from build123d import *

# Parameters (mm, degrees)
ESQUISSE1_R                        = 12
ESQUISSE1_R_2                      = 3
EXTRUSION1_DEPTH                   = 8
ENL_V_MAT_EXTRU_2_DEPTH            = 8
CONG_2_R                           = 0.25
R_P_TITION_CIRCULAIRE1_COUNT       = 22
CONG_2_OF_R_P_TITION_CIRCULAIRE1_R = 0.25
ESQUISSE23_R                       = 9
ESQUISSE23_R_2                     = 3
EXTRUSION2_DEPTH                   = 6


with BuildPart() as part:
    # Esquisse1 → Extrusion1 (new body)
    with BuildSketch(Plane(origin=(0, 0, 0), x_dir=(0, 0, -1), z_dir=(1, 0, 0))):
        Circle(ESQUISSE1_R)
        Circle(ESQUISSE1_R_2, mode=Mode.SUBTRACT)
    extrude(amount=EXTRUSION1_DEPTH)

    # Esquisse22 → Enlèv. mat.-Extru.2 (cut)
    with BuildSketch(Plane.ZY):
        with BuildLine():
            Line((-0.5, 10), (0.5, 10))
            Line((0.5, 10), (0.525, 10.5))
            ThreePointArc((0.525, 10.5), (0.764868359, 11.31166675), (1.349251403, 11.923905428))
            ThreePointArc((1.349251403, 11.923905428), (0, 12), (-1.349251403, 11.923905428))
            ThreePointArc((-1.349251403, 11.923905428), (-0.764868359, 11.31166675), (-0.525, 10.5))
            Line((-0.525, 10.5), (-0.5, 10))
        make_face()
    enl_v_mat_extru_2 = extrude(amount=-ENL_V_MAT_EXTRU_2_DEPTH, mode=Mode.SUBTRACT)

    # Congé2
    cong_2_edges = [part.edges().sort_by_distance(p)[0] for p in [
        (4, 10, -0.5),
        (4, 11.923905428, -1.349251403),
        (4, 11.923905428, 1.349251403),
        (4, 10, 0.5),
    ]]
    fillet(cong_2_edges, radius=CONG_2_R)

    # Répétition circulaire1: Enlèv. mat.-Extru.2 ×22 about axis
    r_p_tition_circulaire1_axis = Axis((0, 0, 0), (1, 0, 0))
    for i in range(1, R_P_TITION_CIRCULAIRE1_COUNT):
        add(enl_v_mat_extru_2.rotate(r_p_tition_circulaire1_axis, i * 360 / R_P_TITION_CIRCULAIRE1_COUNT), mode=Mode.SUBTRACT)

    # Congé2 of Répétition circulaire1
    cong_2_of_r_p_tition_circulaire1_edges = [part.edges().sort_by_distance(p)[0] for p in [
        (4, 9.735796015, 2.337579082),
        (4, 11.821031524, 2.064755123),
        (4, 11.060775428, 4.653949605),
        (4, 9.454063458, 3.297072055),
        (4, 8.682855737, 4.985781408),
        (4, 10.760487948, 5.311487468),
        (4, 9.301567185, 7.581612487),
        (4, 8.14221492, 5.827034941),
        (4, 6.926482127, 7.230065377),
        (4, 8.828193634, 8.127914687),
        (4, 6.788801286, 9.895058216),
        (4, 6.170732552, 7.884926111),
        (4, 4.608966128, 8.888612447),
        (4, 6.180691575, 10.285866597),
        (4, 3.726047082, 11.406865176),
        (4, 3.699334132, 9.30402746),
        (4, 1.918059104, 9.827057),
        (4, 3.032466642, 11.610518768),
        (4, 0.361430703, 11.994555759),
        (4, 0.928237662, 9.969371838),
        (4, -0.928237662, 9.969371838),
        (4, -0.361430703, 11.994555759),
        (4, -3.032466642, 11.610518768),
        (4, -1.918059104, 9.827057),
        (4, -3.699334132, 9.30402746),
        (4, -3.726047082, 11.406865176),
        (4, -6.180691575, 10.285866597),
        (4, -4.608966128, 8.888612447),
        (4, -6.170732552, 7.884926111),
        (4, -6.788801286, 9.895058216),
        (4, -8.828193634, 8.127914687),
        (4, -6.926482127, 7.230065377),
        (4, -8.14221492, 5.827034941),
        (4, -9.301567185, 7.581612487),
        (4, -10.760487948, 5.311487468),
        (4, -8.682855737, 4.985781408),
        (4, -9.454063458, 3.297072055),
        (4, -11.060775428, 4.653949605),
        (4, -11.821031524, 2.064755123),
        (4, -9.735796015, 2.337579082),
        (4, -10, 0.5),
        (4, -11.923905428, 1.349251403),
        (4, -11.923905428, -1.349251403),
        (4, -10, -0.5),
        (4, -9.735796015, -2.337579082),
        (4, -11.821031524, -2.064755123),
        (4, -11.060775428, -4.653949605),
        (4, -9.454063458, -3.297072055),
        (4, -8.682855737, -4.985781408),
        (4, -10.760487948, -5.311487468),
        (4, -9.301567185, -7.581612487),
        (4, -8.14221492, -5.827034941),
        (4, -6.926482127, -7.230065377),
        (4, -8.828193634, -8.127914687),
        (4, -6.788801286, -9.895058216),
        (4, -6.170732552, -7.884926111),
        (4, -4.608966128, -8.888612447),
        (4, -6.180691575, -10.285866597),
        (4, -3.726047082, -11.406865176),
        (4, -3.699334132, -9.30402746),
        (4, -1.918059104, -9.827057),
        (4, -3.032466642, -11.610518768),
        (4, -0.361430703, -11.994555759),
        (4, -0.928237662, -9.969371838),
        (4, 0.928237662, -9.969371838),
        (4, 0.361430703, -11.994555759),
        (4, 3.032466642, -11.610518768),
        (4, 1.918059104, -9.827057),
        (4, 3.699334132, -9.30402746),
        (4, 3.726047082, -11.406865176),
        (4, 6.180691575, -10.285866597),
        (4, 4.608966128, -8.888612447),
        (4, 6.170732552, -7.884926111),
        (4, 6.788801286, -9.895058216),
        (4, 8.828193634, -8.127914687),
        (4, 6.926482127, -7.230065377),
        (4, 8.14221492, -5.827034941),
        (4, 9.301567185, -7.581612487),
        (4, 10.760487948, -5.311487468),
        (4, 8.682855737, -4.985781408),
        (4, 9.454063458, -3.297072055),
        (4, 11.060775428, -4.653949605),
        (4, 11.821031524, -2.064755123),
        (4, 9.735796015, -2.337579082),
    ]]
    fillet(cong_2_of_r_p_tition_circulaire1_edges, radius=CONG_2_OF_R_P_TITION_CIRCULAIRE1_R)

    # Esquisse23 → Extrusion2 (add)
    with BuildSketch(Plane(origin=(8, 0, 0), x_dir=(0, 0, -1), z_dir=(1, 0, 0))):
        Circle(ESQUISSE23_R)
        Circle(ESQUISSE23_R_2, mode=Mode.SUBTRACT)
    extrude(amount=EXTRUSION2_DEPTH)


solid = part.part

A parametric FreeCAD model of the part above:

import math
import FreeCAD as App
import Part
import Sketcher


def edges_at(feature, points):
    """Names of the edges that pass closest to the given points."""
    edges = feature.Shape.Edges
    near = lambda p: min(range(len(edges)), key=lambda i: edges[i].distToShape(Part.Vertex(*p))[0])
    return sorted({f"Edge{near(p) + 1}" for p in points})

doc = App.newDocument("Part")
body = doc.addObject("PartDesign::Body", "Body")

sketch1 = doc.addObject("Sketcher::SketchObject", "Sketch")
body.addObject(sketch1)
sketch1.AttachmentSupport = (doc.YZ_Plane, [""])
sketch1.MapMode = "FlatFace"
sketch1.addGeometry([
    Part.Circle(App.Vector(0, 0, 0), App.Vector(0, 0, 1), 12),
    Part.Circle(App.Vector(0, 0, 0), App.Vector(0, 0, 1), 3),
], False)
sketch1.addConstraint([
    Sketcher.Constraint("Coincident", 0, 3, -1, 1),
    Sketcher.Constraint("Coincident", 1, 3, -1, 1),
    Sketcher.Constraint("Diameter", 0, 24.0),
    Sketcher.Constraint("Diameter", 1, 6.0),
])
pad1 = doc.addObject("PartDesign::Pad", "Pad")
body.addObject(pad1)
pad1.Profile = sketch1
pad1.Length = 8

sketch2 = doc.addObject("Sketcher::SketchObject", "Sketch001")
body.addObject(sketch2)
sketch2.AttachmentSupport = (doc.YZ_Plane, [""])
sketch2.MapMode = "FlatFace"
sketch2.addGeometry([
    Part.LineSegment(App.Vector(10, -0.5, 0), App.Vector(10, 0.5, 0)),
    Part.LineSegment(App.Vector(10, 0.5, 0), App.Vector(10.5, 0.5, 0)),
    Part.ArcOfCircle(Part.Circle(App.Vector(10.4, 2.3, 0), App.Vector(0, 0, 1), 1.8), math.radians(-87), math.radians(-33)),
    Part.ArcOfCircle(Part.Circle(App.Vector(0, 0, 0), App.Vector(0, 0, 1), 12), math.radians(-6.46), math.radians(6.46)),
    Part.ArcOfCircle(Part.Circle(App.Vector(10.4, -2.3, 0), App.Vector(0, 0, 1), 1.8), math.radians(33), math.radians(87)),
    Part.LineSegment(App.Vector(10.5, -0.5, 0), App.Vector(10, -0.5, 0)),
], False)
sketch2.addConstraint([
    Sketcher.Constraint("Coincident", 0, 2, 1, 1),
    Sketcher.Constraint("Tangent", 1, 2, 2, 1),
    Sketcher.Constraint("Coincident", 2, 2, 3, 2),
    Sketcher.Constraint("Coincident", 3, 1, 4, 1),
    Sketcher.Constraint("Tangent", 4, 2, 5, 1),
    Sketcher.Constraint("Coincident", 5, 2, 0, 1),
    Sketcher.Constraint("Vertical", 0),
    Sketcher.Constraint("Coincident", 3, 3, -1, 1),
    Sketcher.Constraint("Equal", 2, 4),
    Sketcher.Constraint("Symmetric", 2, 3, 4, 3, -1),
    Sketcher.Constraint("Vertical", 1, 2, 4, 2),
    Sketcher.Constraint("Radius", 3, 12.0),
    Sketcher.Constraint("DistanceY", 0, 1, 0, 2, 1.0),
    Sketcher.Constraint("DistanceX", -1, 1, 0, 2, 10.0),
    Sketcher.Constraint("DistanceX", -1, 1, 1, 2, 10.5),
    Sketcher.Constraint("Radius", 2, 1.79952),
    Sketcher.Constraint("DistanceY", 4, 2, 1, 2, 1.05),
])
pocket1 = doc.addObject("PartDesign::Pocket", "Pocket")
body.addObject(pocket1)
pocket1.Profile = sketch2
pocket1.Length = 8
pocket1.Reversed = True
doc.recompute()

fillet = doc.addObject("PartDesign::Fillet", "Fillet")
body.addObject(fillet)
fillet.Base = (pocket1, edges_at(pocket1, [
    (4, 10, -0.5),
    (4, 11.924, -1.349),
    (4, 11.924, 1.349),
    (4, 10, 0.5),
]))
fillet.Radius = 0.25
doc.recompute()

polarpattern = doc.addObject("PartDesign::PolarPattern", "PolarPattern")
body.addObject(polarpattern)
polarpattern.Originals = [pocket1]
polarpattern.Axis = (doc.X_Axis, [""])
polarpattern.Angle = 360
polarpattern.Occurrences = 22
body.Tip = polarpattern
doc.recompute()

fillet2 = doc.addObject("PartDesign::Fillet", "Fillet001")
body.addObject(fillet2)
fillet2.Base = (polarpattern, edges_at(polarpattern, [
    (4, 9.736, 2.338),
    (4, 11.821, 2.065),
    (4, 11.061, 4.654),
    (4, 9.454, 3.297),
    (4, 8.683, 4.986),
    (4, 10.76, 5.311),
    (4, 9.302, 7.582),
    (4, 8.142, 5.827),
    (4, 6.926, 7.23),
    (4, 8.828, 8.128),
    (4, 6.789, 9.895),
    (4, 6.171, 7.885),
    (4, 4.609, 8.889),
    (4, 6.181, 10.286),
    (4, 3.726, 11.407),
    (4, 3.699, 9.304),
    (4, 1.918, 9.827),
    (4, 3.032, 11.611),
    (4, 0.361, 11.995),
    (4, 0.928, 9.969),
    (4, -0.928, 9.969),
    (4, -0.361, 11.995),
    (4, -3.032, 11.611),
    (4, -1.918, 9.827),
    (4, -3.699, 9.304),
    (4, -3.726, 11.407),
    (4, -6.181, 10.286),
    (4, -4.609, 8.889),
    (4, -6.171, 7.885),
    (4, -6.789, 9.895),
    (4, -8.828, 8.128),
    (4, -6.926, 7.23),
    (4, -8.142, 5.827),
    (4, -9.302, 7.582),
    (4, -10.76, 5.311),
    (4, -8.683, 4.986),
    (4, -9.454, 3.297),
    (4, -11.061, 4.654),
    (4, -11.821, 2.065),
    (4, -9.736, 2.338),
    (4, -10, 0.5),
    (4, -11.924, 1.349),
    (4, -11.924, -1.349),
    (4, -10, -0.5),
    (4, -9.736, -2.338),
    (4, -11.821, -2.065),
    (4, -11.061, -4.654),
    (4, -9.454, -3.297),
    (4, -8.683, -4.986),
    (4, -10.76, -5.311),
    (4, -9.302, -7.582),
    (4, -8.142, -5.827),
    (4, -6.926, -7.23),
    (4, -8.828, -8.128),
    (4, -6.789, -9.895),
    (4, -6.171, -7.885),
    (4, -4.609, -8.889),
    (4, -6.181, -10.286),
    (4, -3.726, -11.407),
    (4, -3.699, -9.304),
    (4, -1.918, -9.827),
    (4, -3.032, -11.611),
    (4, -0.361, -11.995),
    (4, -0.928, -9.969),
    (4, 0.928, -9.969),
    (4, 0.361, -11.995),
    (4, 3.032, -11.611),
    (4, 1.918, -9.827),
    (4, 3.699, -9.304),
    (4, 3.726, -11.407),
    (4, 6.181, -10.286),
    (4, 4.609, -8.889),
    (4, 6.171, -7.885),
    (4, 6.789, -9.895),
    (4, 8.828, -8.128),
    (4, 6.926, -7.23),
    (4, 8.142, -5.827),
    (4, 9.302, -7.582),
    (4, 10.76, -5.311),
    (4, 8.683, -4.986),
    (4, 9.454, -3.297),
    (4, 11.061, -4.654),
    (4, 11.821, -2.065),
    (4, 9.736, -2.338),
]))
fillet2.Radius = 0.25

sketch3 = doc.addObject("Sketcher::SketchObject", "Sketch002")
body.addObject(sketch3)
sketch3.AttachmentSupport = (doc.YZ_Plane, [""])
sketch3.MapMode = "FlatFace"
sketch3.AttachmentOffset = App.Placement(App.Vector(0, 0, 8), App.Rotation())
sketch3.addGeometry([
    Part.Circle(App.Vector(0, 0, 0), App.Vector(0, 0, 1), 9),
    Part.Circle(App.Vector(0, 0, 0), App.Vector(0, 0, 1), 3),
], False)
sketch3.addConstraint([
    Sketcher.Constraint("Coincident", 0, 3, -1, 1),
    Sketcher.Constraint("Coincident", 1, 3, -1, 1),
    Sketcher.Constraint("Diameter", 0, 18.0),
    Sketcher.Constraint("Diameter", 1, 6.0),
])
pad2 = doc.addObject("PartDesign::Pad", "Pad001")
body.addObject(pad2)
pad2.Profile = sketch3
pad2.Length = 6

doc.recompute()
